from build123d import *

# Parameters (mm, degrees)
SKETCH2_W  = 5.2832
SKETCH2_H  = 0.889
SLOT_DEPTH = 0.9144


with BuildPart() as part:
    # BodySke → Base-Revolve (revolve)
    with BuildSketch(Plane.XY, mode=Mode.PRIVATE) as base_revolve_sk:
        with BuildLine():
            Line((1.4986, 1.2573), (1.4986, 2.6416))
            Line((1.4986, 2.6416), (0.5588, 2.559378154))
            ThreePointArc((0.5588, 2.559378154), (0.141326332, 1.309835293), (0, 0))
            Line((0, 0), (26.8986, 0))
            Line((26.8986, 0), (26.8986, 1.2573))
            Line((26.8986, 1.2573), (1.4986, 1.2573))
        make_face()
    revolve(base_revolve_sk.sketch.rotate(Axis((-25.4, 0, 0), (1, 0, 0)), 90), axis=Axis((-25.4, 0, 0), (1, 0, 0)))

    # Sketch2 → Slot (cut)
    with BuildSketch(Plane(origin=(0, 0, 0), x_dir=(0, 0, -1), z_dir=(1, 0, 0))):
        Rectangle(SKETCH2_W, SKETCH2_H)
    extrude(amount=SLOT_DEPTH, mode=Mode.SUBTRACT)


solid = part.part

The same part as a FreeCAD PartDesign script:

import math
import FreeCAD as App
import Part
import Sketcher

V = App.Vector
Q = App.Units.Quantity


def add_polygon(sketch, points):
    """Adds a closed chain of lines whose ends are joined by coincident constraints."""
    first, n = sketch.GeometryCount, len(points)
    for a, b in zip(points, points[1:] + points[:1]):
        sketch.addGeometry(Part.LineSegment(App.Vector(*a, 0), App.Vector(*b, 0)), False)
    for i in range(n):
        sketch.addConstraint(Sketcher.Constraint("Coincident", first + i, 2, first + (i + 1) % n, 1))

doc = App.newDocument("Part")
params = doc.addObject("Spreadsheet::Sheet", "Params")
for row, (alias, value) in enumerate([
    ("sketch1_width", "1 in"),
    ("sketch1_width2", "1.059 in"),
    ("revolution_angle", "360 deg"),
    ("sketch2_width", "0.035 in"),
    ("sketch2_height", "0.208 in"),
    ("pocket1_length", "0.036 in"),
], start=1):
    params.set(f"A{row}", alias)
    params.set(f"B{row}", "=" + value)
    params.setAlias(f"B{row}", alias)

body = doc.addObject("PartDesign::Body", "Body")

# Sketch on XY plane
sketch1 = body.newObject("Sketcher::SketchObject", "Sketch")
sketch1.AttachmentSupport = (doc.getObject("XY_Plane"), [""])
sketch1.MapMode = "FlatFace"
sketch1.addGeometry([
    Part.LineSegment(V(1.4986, 1.2573, 0), V(1.4986, 2.6416, 0)),  # 0
    Part.LineSegment(V(1.4986, 2.6416, 0), V(0.5588, 2.559378, 0)),  # 1
    Part.ArcOfCircle(Part.Circle(V(6.140546, 0, 0), V(0, 0, 1), 6.140546), math.radians(155.367291), math.radians(180)),  # 2
    Part.LineSegment(V(0, 0, 0), V(26.8986, 0, 0)),  # 3
    Part.LineSegment(V(26.8986, 0, 0), V(26.8986, 1.2573, 0)),  # 4
    Part.LineSegment(V(26.8986, 1.2573, 0), V(1.4986, 1.2573, 0)),  # 5
], False)
sketch1.addConstraint([
    Sketcher.Constraint("Coincident", 0, 2, 1, 1),
    Sketcher.Constraint("Coincident", 1, 2, 2, 1),
    Sketcher.Constraint("Coincident", 2, 2, 3, 1),
    Sketcher.Constraint("Coincident", 3, 2, 4, 1),
    Sketcher.Constraint("Coincident", 4, 2, 5, 1),
    Sketcher.Constraint("Coincident", 5, 2, 0, 1),
    Sketcher.Constraint("Vertical", 0),
    Sketcher.Constraint("Horizontal", 3),
    Sketcher.Constraint("Vertical", 4),
    Sketcher.Constraint("Horizontal", 5),
    Sketcher.Constraint("Coincident", 2, 2, -1, 1),
    Sketcher.Constraint("PointOnObject", 2, 3, -1),
    Sketcher.Constraint("DistanceX", 5, 2, 5, 1, Q("1 in")),
    Sketcher.Constraint("Angle", 1, Q("-175 deg")),
    Sketcher.Constraint("DistanceX", 3, 1, 3, 2, Q("1.059 in")),
    Sketcher.Constraint("DistanceY", 0, 1, 0, 2, Q("0.0545 in")),
    Sketcher.Constraint("DistanceY", 4, 1, 4, 2, Q("0.0495 in")),
    Sketcher.Constraint("DistanceX", -1, 1, 1, 2, Q("0.022 in")),
])
sketch1.setExpression("Constraints[12]", "Params.sketch1_width")
sketch1.setExpression("Constraints[14]", "Params.sketch1_width2")
revolution = body.newObject("PartDesign::Revolution", "Revolution")
revolution.Profile = sketch1
revolution.ReferenceAxis = (sketch1, ["H_Axis"])
revolution.setExpression("Angle", "Params.revolution_angle")

# Sketch on YZ plane
sketch2 = body.newObject("Sketcher::SketchObject", "Sketch001")
sketch2.AttachmentSupport = (doc.getObject("YZ_Plane"), [""])
sketch2.MapMode = "FlatFace"
add_polygon(sketch2, [(0.4445, 2.6416), (-0.4445, 2.6416), (-0.4445, -2.6416), (0.4445, -2.6416)])  # lines 0-3
sketch2.addConstraint([
    Sketcher.Constraint("Horizontal", 0),
    Sketcher.Constraint("Vertical", 1),
    Sketcher.Constraint("Horizontal", 2),
    Sketcher.Constraint("Vertical", 3),
    Sketcher.Constraint("Symmetric", 0, 2, 2, 2, -1, 1),
    Sketcher.Constraint("DistanceX", 0, 2, 0, 1, Q("0.035 in")),
    Sketcher.Constraint("DistanceY", 1, 2, 1, 1, Q("0.208 in")),
])
sketch2.setExpression("Constraints[9]", "Params.sketch2_width")
sketch2.setExpression("Constraints[10]", "Params.sketch2_height")
pocket1 = body.newObject("PartDesign::Pocket", "Pocket")
pocket1.Profile = sketch2
pocket1.setExpression("Length", "Params.pocket1_length")
pocket1.Reversed = True

doc.recompute()
